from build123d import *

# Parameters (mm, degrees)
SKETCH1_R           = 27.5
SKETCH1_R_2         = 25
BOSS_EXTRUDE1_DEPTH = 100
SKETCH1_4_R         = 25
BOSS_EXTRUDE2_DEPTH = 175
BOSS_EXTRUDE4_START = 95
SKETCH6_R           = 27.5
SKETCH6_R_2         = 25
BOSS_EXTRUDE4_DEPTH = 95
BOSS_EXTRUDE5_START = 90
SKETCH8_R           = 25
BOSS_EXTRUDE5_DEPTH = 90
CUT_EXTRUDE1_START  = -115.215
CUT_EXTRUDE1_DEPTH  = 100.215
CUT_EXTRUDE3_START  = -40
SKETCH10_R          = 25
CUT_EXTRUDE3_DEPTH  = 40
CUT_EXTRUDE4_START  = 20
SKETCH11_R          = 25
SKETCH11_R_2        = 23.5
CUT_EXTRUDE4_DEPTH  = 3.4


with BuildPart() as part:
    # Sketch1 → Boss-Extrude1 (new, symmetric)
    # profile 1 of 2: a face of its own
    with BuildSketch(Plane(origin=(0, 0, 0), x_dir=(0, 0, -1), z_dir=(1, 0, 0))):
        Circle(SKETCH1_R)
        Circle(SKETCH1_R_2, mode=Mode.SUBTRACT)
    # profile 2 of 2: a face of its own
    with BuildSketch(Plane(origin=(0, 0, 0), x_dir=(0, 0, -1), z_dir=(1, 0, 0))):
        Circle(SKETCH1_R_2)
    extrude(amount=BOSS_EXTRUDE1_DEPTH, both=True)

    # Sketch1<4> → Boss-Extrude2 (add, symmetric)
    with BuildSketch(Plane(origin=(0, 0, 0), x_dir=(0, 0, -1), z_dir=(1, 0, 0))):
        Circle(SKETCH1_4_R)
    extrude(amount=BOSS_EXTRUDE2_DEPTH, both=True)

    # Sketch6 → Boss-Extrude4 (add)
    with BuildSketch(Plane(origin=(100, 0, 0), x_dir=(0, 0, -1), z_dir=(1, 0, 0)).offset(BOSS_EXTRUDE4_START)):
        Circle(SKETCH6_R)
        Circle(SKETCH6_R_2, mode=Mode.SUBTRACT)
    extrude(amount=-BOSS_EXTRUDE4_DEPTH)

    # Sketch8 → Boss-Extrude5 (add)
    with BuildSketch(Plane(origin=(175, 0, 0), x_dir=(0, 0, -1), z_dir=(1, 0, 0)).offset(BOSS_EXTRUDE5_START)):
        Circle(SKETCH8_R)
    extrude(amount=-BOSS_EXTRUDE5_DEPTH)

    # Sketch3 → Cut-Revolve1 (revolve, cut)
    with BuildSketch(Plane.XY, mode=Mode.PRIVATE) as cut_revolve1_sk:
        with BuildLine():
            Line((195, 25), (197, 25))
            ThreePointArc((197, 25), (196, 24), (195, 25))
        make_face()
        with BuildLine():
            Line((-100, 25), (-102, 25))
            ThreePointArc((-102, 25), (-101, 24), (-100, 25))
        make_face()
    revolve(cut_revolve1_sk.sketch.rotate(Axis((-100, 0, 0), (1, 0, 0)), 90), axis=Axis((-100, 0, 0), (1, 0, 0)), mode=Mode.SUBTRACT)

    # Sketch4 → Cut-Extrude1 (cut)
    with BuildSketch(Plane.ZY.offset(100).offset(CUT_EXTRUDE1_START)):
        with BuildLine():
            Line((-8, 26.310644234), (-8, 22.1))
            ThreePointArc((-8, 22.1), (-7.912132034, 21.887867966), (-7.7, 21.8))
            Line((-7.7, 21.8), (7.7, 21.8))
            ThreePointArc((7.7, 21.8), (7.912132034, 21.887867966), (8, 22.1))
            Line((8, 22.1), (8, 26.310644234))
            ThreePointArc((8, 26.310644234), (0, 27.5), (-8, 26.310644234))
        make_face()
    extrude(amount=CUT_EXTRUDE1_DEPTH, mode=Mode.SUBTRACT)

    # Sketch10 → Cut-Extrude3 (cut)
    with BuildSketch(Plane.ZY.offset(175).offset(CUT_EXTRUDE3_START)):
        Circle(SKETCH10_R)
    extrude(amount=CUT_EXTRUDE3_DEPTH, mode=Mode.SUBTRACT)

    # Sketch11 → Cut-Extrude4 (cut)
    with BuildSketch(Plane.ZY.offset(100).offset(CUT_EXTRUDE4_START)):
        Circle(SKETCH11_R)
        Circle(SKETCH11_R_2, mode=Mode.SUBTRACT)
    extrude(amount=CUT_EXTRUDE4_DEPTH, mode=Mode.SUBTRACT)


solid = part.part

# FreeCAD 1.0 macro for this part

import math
import FreeCAD as App
import Part
import Sketcher
from FreeCAD import Vector

doc = App.newDocument("Part")
params = doc.addObject("Spreadsheet::Sheet", "Params")
for row, (alias, value) in enumerate([
    ("sketch1_diameter", "55 mm"),
    ("pad1_length", "200 mm"),
    ("sketch2_diameter", "50 mm"),
    ("pad2_length", "350 mm"),
    ("sketch3_diameter", "55 mm"),
    ("sketch3_diameter2", "50 mm"),
    ("pad3_length", "95 mm"),
    ("sketch4_diameter", "50 mm"),
    ("pad4_length", "90 mm"),
    ("sketch5_radius", "1 mm"),
    ("groove_angle", "360 deg"),
    ("sketch6_radius", "0.3 mm"),
    ("sketch6_radius2", "27.5 mm"),
    ("sketch6_height", "15.4 mm"),
    ("pocket1_length", "100.215 mm"),
    ("sketch7_diameter", "50 mm"),
    ("pocket2_length", "40 mm"),
    ("sketch8_diameter", "50 mm"),
    ("sketch8_diameter2", "47 mm"),
    ("pocket3_length", "3.4 mm"),
], start=1):
    params.set(f"A{row}", alias)
    params.set(f"B{row}", "=" + value)
    params.setAlias(f"B{row}", alias)

body = doc.addObject("PartDesign::Body", "Body")

# Sketch on YZ plane
sketch1 = body.newObject("Sketcher::SketchObject", "Sketch")
sketch1.AttachmentSupport = (doc.getObject("YZ_Plane"), [""])
sketch1.MapMode = "FlatFace"
sketch1.addGeometry(Part.Circle(Vector(0, 0, 0), Vector(0, 0, 1), 28), False)
sketch1.addConstraint(Sketcher.Constraint("Coincident", 0, 3, -1, 1))
sketch1.addConstraint(Sketcher.Constraint("Diameter", 0, 55.0))
sketch1.setExpression("Constraints[1]", "Params.sketch1_diameter")
pad1 = body.newObject("PartDesign::Pad", "Pad")
pad1.Profile = sketch1
pad1.setExpression("Length", "Params.pad1_length")
pad1.Midplane = True

# Sketch on YZ plane
sketch2 = body.newObject("Sketcher::SketchObject", "Sketch001")
sketch2.AttachmentSupport = (doc.getObject("YZ_Plane"), [""])
sketch2.MapMode = "FlatFace"
sketch2.addGeometry(Part.Circle(Vector(0, 0, 0), Vector(0, 0, 1), 25), False)
sketch2.addConstraint(Sketcher.Constraint("Coincident", 0, 3, -1, 1))
sketch2.addConstraint(Sketcher.Constraint("Diameter", 0, 50.0))
sketch2.setExpression("Constraints[1]", "Params.sketch2_diameter")
pad2 = body.newObject("PartDesign::Pad", "Pad001")
pad2.Profile = sketch2
pad2.setExpression("Length", "Params.pad2_length")
pad2.Midplane = True

# Sketch on YZ plane
sketch3 = body.newObject("Sketcher::SketchObject", "Sketch002")
sketch3.AttachmentSupport = (doc.getObject("YZ_Plane"), [""])
sketch3.MapMode = "FlatFace"
sketch3.AttachmentOffset = App.Placement(Vector(0, 0, 195), App.Rotation())
sketch3.addGeometry(Part.Circle(Vector(0, 0, 0), Vector(0, 0, 1), 28), False)
sketch3.addGeometry(Part.Circle(Vector(0, 0, 0), Vector(0, 0, 1), 25), False)
sketch3.addConstraint(Sketcher.Constraint("Coincident", 0, 3, -1, 1))
sketch3.addConstraint(Sketcher.Constraint("Coincident", 1, 3, -1, 1))
sketch3.addConstraint(Sketcher.Constraint("Diameter", 0, 55.0))
sketch3.addConstraint(Sketcher.Constraint("Diameter", 1, 50.0))
sketch3.setExpression("Constraints[2]", "Params.sketch3_diameter")
sketch3.setExpression("Constraints[3]", "Params.sketch3_diameter2")
pad3 = body.newObject("PartDesign::Pad", "Pad002")
pad3.Profile = sketch3
pad3.setExpression("Length", "Params.pad3_length")
pad3.Reversed = True

# Sketch on YZ plane
sketch4 = body.newObject("Sketcher::SketchObject", "Sketch003")
sketch4.AttachmentSupport = (doc.getObject("YZ_Plane"), [""])
sketch4.MapMode = "FlatFace"
sketch4.AttachmentOffset = App.Placement(Vector(0, 0, 265), App.Rotation())
sketch4.addGeometry(Part.Circle(Vector(0, 0, 0), Vector(0, 0, 1), 25), False)
sketch4.addConstraint(Sketcher.Constraint("Coincident", 0, 3, -1, 1))
sketch4.addConstraint(Sketcher.Constraint("Diameter", 0, 50.0))
sketch4.setExpression("Constraints[1]", "Params.sketch4_diameter")
pad4 = body.newObject("PartDesign::Pad", "Pad003")
pad4.Profile = sketch4
pad4.setExpression("Length", "Params.pad4_length")
pad4.Reversed = True

# Sketch on XY plane
sketch5 = body.newObject("Sketcher::SketchObject", "Sketch004")
sketch5.AttachmentSupport = (doc.getObject("XY_Plane"), [""])
sketch5.MapMode = "FlatFace"
sketch5.addGeometry(Part.LineSegment(Vector(197, 25, 0), Vector(195, 25, 0)), False)
sketch5.addGeometry(Part.ArcOfCircle(Part.Circle(Vector(196, 25, 0), Vector(0, 0, 1), 1), math.radians(180), math.radians(360)), False)
sketch5.addGeometry(Part.LineSegment(Vector(-100, 25, 0), Vector(-102, 25, 0)), False)
sketch5.addGeometry(Part.ArcOfCircle(Part.Circle(Vector(-101, 25, 0), Vector(0, 0, 1), 1), math.radians(180), math.radians(360)), False)
sketch5.addConstraint(Sketcher.Constraint("Coincident", 0, 1, 1, 2))
sketch5.addConstraint(Sketcher.Constraint("Coincident", 1, 1, 0, 2))
sketch5.addConstraint(Sketcher.Constraint("Coincident", 2, 1, 3, 2))
sketch5.addConstraint(Sketcher.Constraint("Coincident", 3, 1, 2, 2))
sketch5.addConstraint(Sketcher.Constraint("Horizontal", 0))
sketch5.addConstraint(Sketcher.Constraint("Horizontal", 2))
sketch5.addConstraint(Sketcher.Constraint("Equal", 1, 3))
sketch5.addConstraint(Sketcher.Constraint("Horizontal", 1, 3, 3, 3))
sketch5.addConstraint(Sketcher.Constraint("Horizontal", 3, 3, 0, 1))
sketch5.addConstraint(Sketcher.Constraint("Horizontal", 1, 1, 2, 1))
sketch5.addConstraint(Sketcher.Constraint("Radius", 1, 1.0))
sketch5.addConstraint(Sketcher.Constraint("DistanceX", -1, 1, 1, 3, 196.0))
sketch5.addConstraint(Sketcher.Constraint("DistanceY", -1, 1, 1, 3, 25.0))
sketch5.addConstraint(Sketcher.Constraint("DistanceX", 3, 3, -1, 1, 101.0))
sketch5.setExpression("Constraints[10]", "Params.sketch5_radius")
groove = body.newObject("PartDesign::Groove", "Groove")
groove.Profile = sketch5
groove.ReferenceAxis = (sketch5, ["H_Axis"])
groove.setExpression("Angle", "Params.groove_angle")

# Sketch on YZ plane
sketch6 = body.newObject("Sketcher::SketchObject", "Sketch005")
sketch6.AttachmentSupport = (doc.getObject("YZ_Plane"), [""])
sketch6.MapMode = "FlatFace"
sketch6.AttachmentOffset = App.Placement(Vector(0, 0, 15.215), App.Rotation())
sketch6.addGeometry(Part.LineSegment(Vector(26.31, -8, 0), Vector(22.1, -8, 0)), False)
sketch6.addGeometry(Part.ArcOfCircle(Part.Circle(Vector(22.1, -7.7, 0), Vector(0, 0, 1), 0.3), math.radians(-180), math.radians(-90)), False)
sketch6.addGeometry(Part.LineSegment(Vector(21.8, -7.7, 0), Vector(21.8, 7.7, 0)), False)
sketch6.addGeometry(Part.ArcOfCircle(Part.Circle(Vector(22.1, 7.7, 0), Vector(0, 0, 1), 0.3), math.radians(90), math.radians(180)), False)
sketch6.addGeometry(Part.LineSegment(Vector(22.1, 8, 0), Vector(26.31, 8, 0)), False)
sketch6.addGeometry(Part.ArcOfCircle(Part.Circle(Vector(0, 0, 0), Vector(0, 0, 1), 27.5), math.radians(-17), math.radians(17)), False)
sketch6.addConstraint(Sketcher.Constraint("Tangent", 0, 2, 1, 2))
sketch6.addConstraint(Sketcher.Constraint("Tangent", 1, 1, 2, 1))
sketch6.addConstraint(Sketcher.Constraint("Tangent", 2, 2, 3, 2))
sketch6.addConstraint(Sketcher.Constraint("Tangent", 3, 1, 4, 1))
sketch6.addConstraint(Sketcher.Constraint("Coincident", 4, 2, 5, 2))
sketch6.addConstraint(Sketcher.Constraint("Coincident", 5, 1, 0, 1))
sketch6.addConstraint(Sketcher.Constraint("Horizontal", 0))
sketch6.addConstraint(Sketcher.Constraint("Vertical", 2))
sketch6.addConstraint(Sketcher.Constraint("Horizontal", 4))
sketch6.addConstraint(Sketcher.Constraint("Coincident", 5, 3, -1, 1))
sketch6.addConstraint(Sketcher.Constraint("Equal", 1, 3))
sketch6.addConstraint(Sketcher.Constraint("Vertical", 4, 2, 5, 1))
sketch6.addConstraint(Sketcher.Constraint("Radius", 1, 0.3))
sketch6.addConstraint(Sketcher.Constraint("Radius", 5, 27.5))
sketch6.addConstraint(Sketcher.Constraint("DistanceY", 2, 1, 2, 2, 15.4))
sketch6.addConstraint(Sketcher.Constraint("DistanceX", -1, 1, 1, 3, 22.1))
sketch6.setExpression("Constraints[12]", "Params.sketch6_radius")
sketch6.setExpression("Constraints[13]", "Params.sketch6_radius2")
sketch6.setExpression("Constraints[14]", "Params.sketch6_height")
pocket1 = body.newObject("PartDesign::Pocket", "Pocket")
pocket1.Profile = sketch6
pocket1.setExpression("Length", "Params.pocket1_length")

# Sketch on YZ plane
sketch7 = body.newObject("Sketcher::SketchObject", "Sketch006")
sketch7.AttachmentSupport = (doc.getObject("YZ_Plane"), [""])
sketch7.MapMode = "FlatFace"
sketch7.AttachmentOffset = App.Placement(Vector(0, 0, -135), App.Rotation())
sketch7.addGeometry(Part.Circle(Vector(0, 0, 0), Vector(0, 0, 1), 25), False)
sketch7.addConstraint(Sketcher.Constraint("Coincident", 0, 3, -1, 1))
sketch7.addConstraint(Sketcher.Constraint("Diameter", 0, 50.0))
sketch7.setExpression("Constraints[1]", "Params.sketch7_diameter")
pocket2 = body.newObject("PartDesign::Pocket", "Pocket001")
pocket2.Profile = sketch7
pocket2.setExpression("Length", "Params.pocket2_length")

# Sketch on YZ plane
sketch8 = body.newObject("Sketcher::SketchObject", "Sketch007")
sketch8.AttachmentSupport = (doc.getObject("YZ_Plane"), [""])
sketch8.MapMode = "FlatFace"
sketch8.AttachmentOffset = App.Placement(Vector(0, 0, -120), App.Rotation())
sketch8.addGeometry(Part.Circle(Vector(0, 0, 0), Vector(0, 0, 1), 25), False)
sketch8.addGeometry(Part.Circle(Vector(0, 0, 0), Vector(0, 0, 1), 24), False)
sketch8.addConstraint(Sketcher.Constraint("Coincident", 0, 3, -1, 1))
sketch8.addConstraint(Sketcher.Constraint("Coincident", 1, 3, -1, 1))
sketch8.addConstraint(Sketcher.Constraint("Diameter", 0, 50.0))
sketch8.addConstraint(Sketcher.Constraint("Diameter", 1, 47.0))
sketch8.setExpression("Constraints[2]", "Params.sketch8_diameter")
sketch8.setExpression("Constraints[3]", "Params.sketch8_diameter2")
pocket3 = body.newObject("PartDesign::Pocket", "Pocket002")
pocket3.Profile = sketch8
pocket3.setExpression("Length", "Params.pocket3_length")

doc.recompute()
